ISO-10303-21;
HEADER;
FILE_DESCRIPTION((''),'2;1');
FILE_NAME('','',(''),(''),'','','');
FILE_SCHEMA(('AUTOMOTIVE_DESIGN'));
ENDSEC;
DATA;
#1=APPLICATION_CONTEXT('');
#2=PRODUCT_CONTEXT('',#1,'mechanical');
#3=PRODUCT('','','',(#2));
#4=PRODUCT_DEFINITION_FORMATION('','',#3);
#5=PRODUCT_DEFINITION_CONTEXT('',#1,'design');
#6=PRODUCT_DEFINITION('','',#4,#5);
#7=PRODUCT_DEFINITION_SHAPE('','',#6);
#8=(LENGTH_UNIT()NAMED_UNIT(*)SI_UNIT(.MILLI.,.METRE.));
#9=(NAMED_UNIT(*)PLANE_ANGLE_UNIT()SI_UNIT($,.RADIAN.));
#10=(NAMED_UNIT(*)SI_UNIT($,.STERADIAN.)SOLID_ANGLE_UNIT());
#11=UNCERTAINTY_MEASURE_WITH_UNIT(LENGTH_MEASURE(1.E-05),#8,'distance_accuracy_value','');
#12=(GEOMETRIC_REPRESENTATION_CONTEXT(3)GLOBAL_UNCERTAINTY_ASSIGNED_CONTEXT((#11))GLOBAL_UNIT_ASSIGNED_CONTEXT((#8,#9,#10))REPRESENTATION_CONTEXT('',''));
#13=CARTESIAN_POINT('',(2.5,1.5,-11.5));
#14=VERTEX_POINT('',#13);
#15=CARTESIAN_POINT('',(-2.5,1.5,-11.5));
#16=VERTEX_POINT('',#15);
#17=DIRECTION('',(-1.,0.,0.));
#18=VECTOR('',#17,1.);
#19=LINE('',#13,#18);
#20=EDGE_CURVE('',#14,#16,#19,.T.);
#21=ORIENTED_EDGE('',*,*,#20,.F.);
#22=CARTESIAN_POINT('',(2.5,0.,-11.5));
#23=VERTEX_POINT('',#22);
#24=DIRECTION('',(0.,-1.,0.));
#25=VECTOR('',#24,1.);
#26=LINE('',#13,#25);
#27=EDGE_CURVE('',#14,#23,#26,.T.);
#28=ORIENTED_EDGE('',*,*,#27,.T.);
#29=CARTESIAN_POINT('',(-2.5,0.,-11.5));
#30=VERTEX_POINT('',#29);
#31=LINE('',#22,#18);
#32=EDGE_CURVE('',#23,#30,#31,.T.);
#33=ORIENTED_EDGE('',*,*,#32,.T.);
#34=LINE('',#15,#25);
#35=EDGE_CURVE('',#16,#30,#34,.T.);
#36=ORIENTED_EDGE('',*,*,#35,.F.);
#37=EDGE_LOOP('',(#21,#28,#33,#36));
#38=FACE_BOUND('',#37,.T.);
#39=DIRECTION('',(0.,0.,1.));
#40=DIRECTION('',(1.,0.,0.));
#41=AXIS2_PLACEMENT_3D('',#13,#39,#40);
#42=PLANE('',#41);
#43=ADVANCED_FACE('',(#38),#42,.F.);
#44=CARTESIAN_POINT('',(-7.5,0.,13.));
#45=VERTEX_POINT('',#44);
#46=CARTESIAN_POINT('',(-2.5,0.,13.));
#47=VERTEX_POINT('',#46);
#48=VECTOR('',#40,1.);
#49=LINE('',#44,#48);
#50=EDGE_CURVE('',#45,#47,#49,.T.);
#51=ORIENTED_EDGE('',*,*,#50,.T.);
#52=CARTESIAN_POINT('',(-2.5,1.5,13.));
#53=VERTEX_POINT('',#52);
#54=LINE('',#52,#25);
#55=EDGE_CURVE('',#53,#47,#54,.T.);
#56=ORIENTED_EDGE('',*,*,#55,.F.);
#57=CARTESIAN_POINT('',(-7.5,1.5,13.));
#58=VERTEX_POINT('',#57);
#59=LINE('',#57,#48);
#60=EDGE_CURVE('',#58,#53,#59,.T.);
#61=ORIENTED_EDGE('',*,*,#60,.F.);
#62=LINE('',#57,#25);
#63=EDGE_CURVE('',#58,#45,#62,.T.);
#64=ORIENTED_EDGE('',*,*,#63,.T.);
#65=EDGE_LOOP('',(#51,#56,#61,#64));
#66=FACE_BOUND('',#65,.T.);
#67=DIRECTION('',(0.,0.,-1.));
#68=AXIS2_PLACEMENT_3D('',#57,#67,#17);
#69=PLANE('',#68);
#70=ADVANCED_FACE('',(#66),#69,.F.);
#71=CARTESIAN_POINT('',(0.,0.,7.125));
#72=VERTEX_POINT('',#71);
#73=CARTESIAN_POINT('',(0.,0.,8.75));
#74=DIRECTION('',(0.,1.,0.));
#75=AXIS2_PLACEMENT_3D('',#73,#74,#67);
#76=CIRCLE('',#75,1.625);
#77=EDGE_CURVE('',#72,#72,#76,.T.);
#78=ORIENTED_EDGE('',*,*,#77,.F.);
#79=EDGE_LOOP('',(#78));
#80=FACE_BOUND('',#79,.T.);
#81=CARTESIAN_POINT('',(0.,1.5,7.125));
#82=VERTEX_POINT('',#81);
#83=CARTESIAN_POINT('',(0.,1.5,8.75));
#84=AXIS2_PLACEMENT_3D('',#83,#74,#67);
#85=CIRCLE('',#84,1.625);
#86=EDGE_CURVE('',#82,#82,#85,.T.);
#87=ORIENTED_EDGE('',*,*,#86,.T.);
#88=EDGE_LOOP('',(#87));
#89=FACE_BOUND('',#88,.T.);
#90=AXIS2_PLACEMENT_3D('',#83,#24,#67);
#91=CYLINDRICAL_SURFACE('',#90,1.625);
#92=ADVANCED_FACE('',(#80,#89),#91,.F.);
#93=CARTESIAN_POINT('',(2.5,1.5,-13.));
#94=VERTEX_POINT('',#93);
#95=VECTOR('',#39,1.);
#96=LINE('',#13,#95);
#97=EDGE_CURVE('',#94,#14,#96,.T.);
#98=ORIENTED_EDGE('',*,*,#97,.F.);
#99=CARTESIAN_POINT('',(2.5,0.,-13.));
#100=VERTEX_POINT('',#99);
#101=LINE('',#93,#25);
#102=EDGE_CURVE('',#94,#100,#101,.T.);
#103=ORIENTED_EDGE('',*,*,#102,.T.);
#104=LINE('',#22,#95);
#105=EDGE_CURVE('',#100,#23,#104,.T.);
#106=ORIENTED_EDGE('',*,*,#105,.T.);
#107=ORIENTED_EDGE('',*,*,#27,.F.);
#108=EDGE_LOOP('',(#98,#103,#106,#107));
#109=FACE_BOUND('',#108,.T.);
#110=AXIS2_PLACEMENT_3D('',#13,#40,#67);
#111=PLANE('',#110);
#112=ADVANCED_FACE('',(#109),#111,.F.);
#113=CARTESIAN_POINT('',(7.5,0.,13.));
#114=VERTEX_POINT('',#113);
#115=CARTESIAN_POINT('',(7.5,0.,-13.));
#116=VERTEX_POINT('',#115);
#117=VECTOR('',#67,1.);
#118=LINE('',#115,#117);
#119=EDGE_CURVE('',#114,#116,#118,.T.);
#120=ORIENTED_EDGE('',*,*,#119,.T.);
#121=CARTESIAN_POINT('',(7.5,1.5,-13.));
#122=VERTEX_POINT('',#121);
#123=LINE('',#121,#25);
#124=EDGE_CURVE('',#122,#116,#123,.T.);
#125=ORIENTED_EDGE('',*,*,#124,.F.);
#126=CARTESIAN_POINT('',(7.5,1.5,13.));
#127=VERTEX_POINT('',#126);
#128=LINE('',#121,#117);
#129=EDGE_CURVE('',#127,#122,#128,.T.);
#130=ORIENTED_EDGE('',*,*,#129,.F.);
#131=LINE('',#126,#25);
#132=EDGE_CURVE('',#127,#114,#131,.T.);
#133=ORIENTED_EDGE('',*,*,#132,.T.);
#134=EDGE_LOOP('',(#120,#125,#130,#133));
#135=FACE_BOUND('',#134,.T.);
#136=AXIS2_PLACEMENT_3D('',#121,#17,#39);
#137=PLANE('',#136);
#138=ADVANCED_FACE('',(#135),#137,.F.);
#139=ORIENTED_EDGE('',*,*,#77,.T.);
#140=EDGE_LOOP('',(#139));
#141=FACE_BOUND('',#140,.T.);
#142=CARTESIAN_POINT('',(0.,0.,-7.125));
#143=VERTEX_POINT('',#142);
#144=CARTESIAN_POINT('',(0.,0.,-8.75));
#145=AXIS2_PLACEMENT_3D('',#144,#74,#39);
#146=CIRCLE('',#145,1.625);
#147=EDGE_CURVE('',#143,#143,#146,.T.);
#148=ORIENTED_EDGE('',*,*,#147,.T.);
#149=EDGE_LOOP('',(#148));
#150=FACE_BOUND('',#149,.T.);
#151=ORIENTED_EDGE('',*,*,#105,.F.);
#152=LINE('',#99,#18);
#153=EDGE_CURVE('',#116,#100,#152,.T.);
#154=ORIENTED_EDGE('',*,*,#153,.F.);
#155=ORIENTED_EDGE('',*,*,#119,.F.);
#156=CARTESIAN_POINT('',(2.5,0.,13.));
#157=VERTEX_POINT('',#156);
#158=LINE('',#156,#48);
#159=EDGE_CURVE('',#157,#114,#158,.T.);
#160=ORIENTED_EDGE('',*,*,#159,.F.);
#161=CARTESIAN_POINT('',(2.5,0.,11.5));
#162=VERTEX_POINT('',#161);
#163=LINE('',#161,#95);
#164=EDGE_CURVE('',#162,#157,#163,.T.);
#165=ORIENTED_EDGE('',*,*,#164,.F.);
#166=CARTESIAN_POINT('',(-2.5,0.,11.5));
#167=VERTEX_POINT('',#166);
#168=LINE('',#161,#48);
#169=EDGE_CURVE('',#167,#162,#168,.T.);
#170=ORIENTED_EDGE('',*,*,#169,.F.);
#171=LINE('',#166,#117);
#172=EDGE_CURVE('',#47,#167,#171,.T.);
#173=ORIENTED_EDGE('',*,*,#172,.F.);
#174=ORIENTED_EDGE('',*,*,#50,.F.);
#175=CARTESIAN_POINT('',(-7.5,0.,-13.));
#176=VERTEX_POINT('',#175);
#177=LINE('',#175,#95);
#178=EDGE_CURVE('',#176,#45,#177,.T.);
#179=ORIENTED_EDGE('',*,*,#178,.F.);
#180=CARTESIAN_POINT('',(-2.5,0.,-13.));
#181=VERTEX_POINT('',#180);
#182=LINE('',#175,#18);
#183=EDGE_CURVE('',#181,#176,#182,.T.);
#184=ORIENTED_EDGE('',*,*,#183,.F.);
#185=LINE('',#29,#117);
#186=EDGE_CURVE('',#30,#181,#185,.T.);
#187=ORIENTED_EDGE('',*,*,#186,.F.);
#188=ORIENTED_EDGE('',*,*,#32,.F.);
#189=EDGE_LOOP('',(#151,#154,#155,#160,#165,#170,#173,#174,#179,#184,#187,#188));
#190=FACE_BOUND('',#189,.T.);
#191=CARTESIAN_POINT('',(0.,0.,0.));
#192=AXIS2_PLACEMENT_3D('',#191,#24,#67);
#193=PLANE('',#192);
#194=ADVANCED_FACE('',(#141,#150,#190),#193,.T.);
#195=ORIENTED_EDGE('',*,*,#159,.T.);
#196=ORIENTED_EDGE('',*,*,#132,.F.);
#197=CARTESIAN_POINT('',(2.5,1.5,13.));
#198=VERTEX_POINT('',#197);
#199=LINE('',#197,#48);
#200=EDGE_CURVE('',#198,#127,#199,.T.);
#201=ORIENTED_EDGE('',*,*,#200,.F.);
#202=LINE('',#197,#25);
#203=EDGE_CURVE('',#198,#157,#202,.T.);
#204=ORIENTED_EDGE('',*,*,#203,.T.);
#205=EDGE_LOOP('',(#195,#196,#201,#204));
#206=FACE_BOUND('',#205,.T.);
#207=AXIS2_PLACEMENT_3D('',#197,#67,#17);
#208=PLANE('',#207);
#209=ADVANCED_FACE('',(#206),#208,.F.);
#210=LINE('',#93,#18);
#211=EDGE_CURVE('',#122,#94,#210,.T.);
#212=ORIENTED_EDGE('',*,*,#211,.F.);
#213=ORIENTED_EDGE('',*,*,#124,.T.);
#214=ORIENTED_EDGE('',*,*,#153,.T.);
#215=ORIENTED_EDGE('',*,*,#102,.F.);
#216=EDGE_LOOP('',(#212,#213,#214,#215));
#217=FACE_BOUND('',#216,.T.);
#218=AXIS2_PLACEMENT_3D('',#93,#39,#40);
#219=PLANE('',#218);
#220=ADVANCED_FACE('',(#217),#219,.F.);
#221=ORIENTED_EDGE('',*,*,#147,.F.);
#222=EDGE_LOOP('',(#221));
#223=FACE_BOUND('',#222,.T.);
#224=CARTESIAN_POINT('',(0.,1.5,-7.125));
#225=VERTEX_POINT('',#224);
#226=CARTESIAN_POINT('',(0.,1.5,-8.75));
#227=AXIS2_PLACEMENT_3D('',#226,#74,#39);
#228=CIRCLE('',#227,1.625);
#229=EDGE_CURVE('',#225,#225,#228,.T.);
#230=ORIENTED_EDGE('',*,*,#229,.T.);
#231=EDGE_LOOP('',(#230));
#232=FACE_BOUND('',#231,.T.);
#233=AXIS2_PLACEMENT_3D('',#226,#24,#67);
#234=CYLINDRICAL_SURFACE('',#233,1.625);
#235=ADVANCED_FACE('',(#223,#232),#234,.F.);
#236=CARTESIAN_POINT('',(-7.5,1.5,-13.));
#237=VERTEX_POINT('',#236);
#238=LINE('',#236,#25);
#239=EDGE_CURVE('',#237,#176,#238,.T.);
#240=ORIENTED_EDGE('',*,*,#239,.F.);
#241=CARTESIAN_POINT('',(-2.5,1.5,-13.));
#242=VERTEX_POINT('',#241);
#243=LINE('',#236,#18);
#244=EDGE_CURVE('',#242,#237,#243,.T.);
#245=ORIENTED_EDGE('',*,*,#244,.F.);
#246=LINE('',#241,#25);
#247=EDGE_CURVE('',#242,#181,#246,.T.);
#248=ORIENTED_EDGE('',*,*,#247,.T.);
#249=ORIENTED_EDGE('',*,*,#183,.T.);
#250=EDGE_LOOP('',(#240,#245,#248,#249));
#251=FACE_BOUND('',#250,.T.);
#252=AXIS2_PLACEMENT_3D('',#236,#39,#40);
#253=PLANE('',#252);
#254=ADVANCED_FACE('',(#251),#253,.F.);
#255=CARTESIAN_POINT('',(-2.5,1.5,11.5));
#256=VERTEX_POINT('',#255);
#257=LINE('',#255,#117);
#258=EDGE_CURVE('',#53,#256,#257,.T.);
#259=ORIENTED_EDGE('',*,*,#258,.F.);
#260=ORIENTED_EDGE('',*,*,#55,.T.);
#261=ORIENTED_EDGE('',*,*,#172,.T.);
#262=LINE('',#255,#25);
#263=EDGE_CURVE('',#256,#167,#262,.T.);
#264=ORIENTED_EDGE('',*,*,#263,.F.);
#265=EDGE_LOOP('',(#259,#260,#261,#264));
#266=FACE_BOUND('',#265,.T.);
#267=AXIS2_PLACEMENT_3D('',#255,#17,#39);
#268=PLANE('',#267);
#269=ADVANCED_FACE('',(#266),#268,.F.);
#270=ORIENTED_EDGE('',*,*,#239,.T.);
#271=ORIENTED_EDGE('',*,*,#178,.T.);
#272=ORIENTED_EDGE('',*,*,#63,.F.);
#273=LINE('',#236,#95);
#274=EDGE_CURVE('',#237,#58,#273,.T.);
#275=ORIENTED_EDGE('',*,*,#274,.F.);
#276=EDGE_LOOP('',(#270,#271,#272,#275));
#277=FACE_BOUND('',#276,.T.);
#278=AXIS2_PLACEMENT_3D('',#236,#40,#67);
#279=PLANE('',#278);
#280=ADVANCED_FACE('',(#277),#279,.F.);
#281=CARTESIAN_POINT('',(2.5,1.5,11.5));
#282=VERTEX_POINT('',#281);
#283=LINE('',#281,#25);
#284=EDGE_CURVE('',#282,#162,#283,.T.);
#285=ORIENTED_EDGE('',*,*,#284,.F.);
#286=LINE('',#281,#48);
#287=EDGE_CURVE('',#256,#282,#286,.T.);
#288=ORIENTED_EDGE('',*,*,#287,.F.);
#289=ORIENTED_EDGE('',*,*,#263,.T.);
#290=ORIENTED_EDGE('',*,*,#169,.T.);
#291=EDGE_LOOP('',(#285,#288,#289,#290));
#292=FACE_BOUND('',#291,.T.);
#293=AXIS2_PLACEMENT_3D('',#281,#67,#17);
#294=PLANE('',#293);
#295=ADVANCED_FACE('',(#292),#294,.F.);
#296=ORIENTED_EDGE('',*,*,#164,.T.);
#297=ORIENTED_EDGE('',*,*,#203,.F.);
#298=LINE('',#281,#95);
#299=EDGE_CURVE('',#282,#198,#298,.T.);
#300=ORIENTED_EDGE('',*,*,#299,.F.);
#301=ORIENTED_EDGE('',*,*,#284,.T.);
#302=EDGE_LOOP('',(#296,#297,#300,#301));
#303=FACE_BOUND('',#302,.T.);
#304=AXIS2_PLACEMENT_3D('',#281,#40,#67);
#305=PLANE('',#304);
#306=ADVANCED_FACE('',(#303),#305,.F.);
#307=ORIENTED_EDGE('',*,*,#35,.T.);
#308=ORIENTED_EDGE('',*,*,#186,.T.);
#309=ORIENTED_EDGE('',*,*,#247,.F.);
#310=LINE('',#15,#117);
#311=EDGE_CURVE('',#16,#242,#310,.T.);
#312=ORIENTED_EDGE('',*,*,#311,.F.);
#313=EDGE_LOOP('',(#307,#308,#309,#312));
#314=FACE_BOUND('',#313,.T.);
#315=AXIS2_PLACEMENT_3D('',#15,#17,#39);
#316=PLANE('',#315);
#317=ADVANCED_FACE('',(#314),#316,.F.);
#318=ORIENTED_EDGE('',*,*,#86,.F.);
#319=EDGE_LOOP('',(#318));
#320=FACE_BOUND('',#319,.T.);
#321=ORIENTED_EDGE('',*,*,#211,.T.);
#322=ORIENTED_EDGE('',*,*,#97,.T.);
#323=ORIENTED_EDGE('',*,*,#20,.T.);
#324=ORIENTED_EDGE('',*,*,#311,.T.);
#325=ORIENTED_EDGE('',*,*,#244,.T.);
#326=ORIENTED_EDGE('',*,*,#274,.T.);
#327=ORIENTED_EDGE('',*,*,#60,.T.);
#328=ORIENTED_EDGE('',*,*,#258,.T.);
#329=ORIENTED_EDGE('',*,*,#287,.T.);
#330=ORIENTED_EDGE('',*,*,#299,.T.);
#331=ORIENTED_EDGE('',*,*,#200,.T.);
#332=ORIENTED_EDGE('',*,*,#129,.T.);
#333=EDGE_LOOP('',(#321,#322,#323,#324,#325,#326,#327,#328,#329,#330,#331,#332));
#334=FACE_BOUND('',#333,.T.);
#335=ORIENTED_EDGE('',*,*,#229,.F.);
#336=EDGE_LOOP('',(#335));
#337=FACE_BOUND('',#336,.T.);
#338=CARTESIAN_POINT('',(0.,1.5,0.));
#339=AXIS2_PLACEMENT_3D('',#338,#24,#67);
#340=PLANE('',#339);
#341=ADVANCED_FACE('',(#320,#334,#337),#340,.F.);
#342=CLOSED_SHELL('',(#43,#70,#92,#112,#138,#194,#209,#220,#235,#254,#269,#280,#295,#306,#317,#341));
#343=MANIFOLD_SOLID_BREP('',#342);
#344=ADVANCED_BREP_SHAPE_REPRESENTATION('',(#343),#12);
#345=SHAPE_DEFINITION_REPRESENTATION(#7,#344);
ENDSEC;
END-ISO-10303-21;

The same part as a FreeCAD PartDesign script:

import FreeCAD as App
import Part
import Sketcher

V = App.Vector

doc = App.newDocument("Part")
body = doc.addObject("PartDesign::Body", "Body")

sketch1 = doc.addObject("Sketcher::SketchObject", "Sketch")
body.addObject(sketch1)
sketch1.AttachmentSupport = (doc.XZ_Plane, [""])
sketch1.MapMode = "FlatFace"
sketch1.addGeometry(Part.LineSegment(V(-2.5, -13, 0), V(-7.5, -13, 0)), False)
sketch1.addGeometry(Part.LineSegment(V(-7.5, -13, 0), V(-7.5, 13, 0)), False)
sketch1.addGeometry(Part.LineSegment(V(-7.5, 13, 0), V(-2.5, 13, 0)), False)
sketch1.addGeometry(Part.LineSegment(V(-2.5, 13, 0), V(-2.5, 11.5, 0)), False)
sketch1.addGeometry(Part.LineSegment(V(-2.5, 11.5, 0), V(2.5, 11.5, 0)), False)
sketch1.addGeometry(Part.LineSegment(V(2.5, 11.5, 0), V(2.5, 13, 0)), False)
sketch1.addGeometry(Part.LineSegment(V(2.5, 13, 0), V(7.5, 13, 0)), False)
sketch1.addGeometry(Part.LineSegment(V(7.5, 13, 0), V(7.5, -13, 0)), False)
sketch1.addGeometry(Part.LineSegment(V(7.5, -13, 0), V(2.5, -13, 0)), False)
sketch1.addGeometry(Part.LineSegment(V(2.5, -13, 0), V(2.5, -11.5, 0)), False)
sketch1.addGeometry(Part.LineSegment(V(2.5, -11.5, 0), V(-2.5, -11.5, 0)), False)
sketch1.addGeometry(Part.LineSegment(V(-2.5, -11.5, 0), V(-2.5, -13, 0)), False)
sketch1.addGeometry(Part.Circle(V(0, 8.8, 0), V(0, 0, 1), 1.6), False)
sketch1.addGeometry(Part.Circle(V(0, -8.8, 0), V(0, 0, 1), 1.6), False)
sketch1.addConstraint(Sketcher.Constraint("Coincident", 0, 2, 1, 1))
sketch1.addConstraint(Sketcher.Constraint("Coincident", 1, 2, 2, 1))
sketch1.addConstraint(Sketcher.Constraint("Coincident", 2, 2, 3, 1))
sketch1.addConstraint(Sketcher.Constraint("Coincident", 3, 2, 4, 1))
sketch1.addConstraint(Sketcher.Constraint("Coincident", 4, 2, 5, 1))
sketch1.addConstraint(Sketcher.Constraint("Coincident", 5, 2, 6, 1))
sketch1.addConstraint(Sketcher.Constraint("Coincident", 6, 2, 7, 1))
sketch1.addConstraint(Sketcher.Constraint("Coincident", 7, 2, 8, 1))
sketch1.addConstraint(Sketcher.Constraint("Coincident", 8, 2, 9, 1))
sketch1.addConstraint(Sketcher.Constraint("Coincident", 9, 2, 10, 1))
sketch1.addConstraint(Sketcher.Constraint("Coincident", 10, 2, 11, 1))
sketch1.addConstraint(Sketcher.Constraint("Coincident", 11, 2, 0, 1))
sketch1.addConstraint(Sketcher.Constraint("Horizontal", 0))
sketch1.addConstraint(Sketcher.Constraint("Vertical", 1))
sketch1.addConstraint(Sketcher.Constraint("Horizontal", 2))
sketch1.addConstraint(Sketcher.Constraint("Vertical", 3))
sketch1.addConstraint(Sketcher.Constraint("Horizontal", 4))
sketch1.addConstraint(Sketcher.Constraint("Vertical", 5))
sketch1.addConstraint(Sketcher.Constraint("Horizontal", 6))
sketch1.addConstraint(Sketcher.Constraint("Vertical", 7))
sketch1.addConstraint(Sketcher.Constraint("Horizontal", 8))
sketch1.addConstraint(Sketcher.Constraint("Vertical", 9))
sketch1.addConstraint(Sketcher.Constraint("Horizontal", 10))
sketch1.addConstraint(Sketcher.Constraint("Vertical", 11))
sketch1.addConstraint(Sketcher.Constraint("Equal", 12, 13))
sketch1.addConstraint(Sketcher.Constraint("Symmetric", 12, 3, 13, 3, -1, 1))
sketch1.addConstraint(Sketcher.Constraint("Symmetric", 0, 2, 6, 2, -1, 1))
sketch1.addConstraint(Sketcher.Constraint("Symmetric", 2, 2, 8, 2, -1, 1))
sketch1.addConstraint(Sketcher.Constraint("Symmetric", 4, 2, 10, 2, -1, 1))
sketch1.addConstraint(Sketcher.Constraint("Symmetric", 2, 2, 5, 2, -2))
sketch1.addConstraint(Sketcher.Constraint("PointOnObject", 12, 3, -2))
sketch1.addConstraint(Sketcher.Constraint("Equal", 2, 4))
sketch1.addConstraint(Sketcher.Constraint("Diameter", 12, 3.25))
sketch1.addConstraint(Sketcher.Constraint("DistanceX", 0, 2, 0, 1, 5.0))
sketch1.addConstraint(Sketcher.Constraint("DistanceY", 1, 1, 1, 2, 26.0))
sketch1.addConstraint(Sketcher.Constraint("DistanceY", 3, 2, 3, 1, 1.5))
sketch1.addConstraint(Sketcher.Constraint("DistanceY", 13, 3, 12, 3, 17.5))
pad1 = doc.addObject("PartDesign::Pad", "Pad")
body.addObject(pad1)
pad1.Profile = sketch1
pad1.Length = 1.5
pad1.Reversed = True

doc.recompute()
